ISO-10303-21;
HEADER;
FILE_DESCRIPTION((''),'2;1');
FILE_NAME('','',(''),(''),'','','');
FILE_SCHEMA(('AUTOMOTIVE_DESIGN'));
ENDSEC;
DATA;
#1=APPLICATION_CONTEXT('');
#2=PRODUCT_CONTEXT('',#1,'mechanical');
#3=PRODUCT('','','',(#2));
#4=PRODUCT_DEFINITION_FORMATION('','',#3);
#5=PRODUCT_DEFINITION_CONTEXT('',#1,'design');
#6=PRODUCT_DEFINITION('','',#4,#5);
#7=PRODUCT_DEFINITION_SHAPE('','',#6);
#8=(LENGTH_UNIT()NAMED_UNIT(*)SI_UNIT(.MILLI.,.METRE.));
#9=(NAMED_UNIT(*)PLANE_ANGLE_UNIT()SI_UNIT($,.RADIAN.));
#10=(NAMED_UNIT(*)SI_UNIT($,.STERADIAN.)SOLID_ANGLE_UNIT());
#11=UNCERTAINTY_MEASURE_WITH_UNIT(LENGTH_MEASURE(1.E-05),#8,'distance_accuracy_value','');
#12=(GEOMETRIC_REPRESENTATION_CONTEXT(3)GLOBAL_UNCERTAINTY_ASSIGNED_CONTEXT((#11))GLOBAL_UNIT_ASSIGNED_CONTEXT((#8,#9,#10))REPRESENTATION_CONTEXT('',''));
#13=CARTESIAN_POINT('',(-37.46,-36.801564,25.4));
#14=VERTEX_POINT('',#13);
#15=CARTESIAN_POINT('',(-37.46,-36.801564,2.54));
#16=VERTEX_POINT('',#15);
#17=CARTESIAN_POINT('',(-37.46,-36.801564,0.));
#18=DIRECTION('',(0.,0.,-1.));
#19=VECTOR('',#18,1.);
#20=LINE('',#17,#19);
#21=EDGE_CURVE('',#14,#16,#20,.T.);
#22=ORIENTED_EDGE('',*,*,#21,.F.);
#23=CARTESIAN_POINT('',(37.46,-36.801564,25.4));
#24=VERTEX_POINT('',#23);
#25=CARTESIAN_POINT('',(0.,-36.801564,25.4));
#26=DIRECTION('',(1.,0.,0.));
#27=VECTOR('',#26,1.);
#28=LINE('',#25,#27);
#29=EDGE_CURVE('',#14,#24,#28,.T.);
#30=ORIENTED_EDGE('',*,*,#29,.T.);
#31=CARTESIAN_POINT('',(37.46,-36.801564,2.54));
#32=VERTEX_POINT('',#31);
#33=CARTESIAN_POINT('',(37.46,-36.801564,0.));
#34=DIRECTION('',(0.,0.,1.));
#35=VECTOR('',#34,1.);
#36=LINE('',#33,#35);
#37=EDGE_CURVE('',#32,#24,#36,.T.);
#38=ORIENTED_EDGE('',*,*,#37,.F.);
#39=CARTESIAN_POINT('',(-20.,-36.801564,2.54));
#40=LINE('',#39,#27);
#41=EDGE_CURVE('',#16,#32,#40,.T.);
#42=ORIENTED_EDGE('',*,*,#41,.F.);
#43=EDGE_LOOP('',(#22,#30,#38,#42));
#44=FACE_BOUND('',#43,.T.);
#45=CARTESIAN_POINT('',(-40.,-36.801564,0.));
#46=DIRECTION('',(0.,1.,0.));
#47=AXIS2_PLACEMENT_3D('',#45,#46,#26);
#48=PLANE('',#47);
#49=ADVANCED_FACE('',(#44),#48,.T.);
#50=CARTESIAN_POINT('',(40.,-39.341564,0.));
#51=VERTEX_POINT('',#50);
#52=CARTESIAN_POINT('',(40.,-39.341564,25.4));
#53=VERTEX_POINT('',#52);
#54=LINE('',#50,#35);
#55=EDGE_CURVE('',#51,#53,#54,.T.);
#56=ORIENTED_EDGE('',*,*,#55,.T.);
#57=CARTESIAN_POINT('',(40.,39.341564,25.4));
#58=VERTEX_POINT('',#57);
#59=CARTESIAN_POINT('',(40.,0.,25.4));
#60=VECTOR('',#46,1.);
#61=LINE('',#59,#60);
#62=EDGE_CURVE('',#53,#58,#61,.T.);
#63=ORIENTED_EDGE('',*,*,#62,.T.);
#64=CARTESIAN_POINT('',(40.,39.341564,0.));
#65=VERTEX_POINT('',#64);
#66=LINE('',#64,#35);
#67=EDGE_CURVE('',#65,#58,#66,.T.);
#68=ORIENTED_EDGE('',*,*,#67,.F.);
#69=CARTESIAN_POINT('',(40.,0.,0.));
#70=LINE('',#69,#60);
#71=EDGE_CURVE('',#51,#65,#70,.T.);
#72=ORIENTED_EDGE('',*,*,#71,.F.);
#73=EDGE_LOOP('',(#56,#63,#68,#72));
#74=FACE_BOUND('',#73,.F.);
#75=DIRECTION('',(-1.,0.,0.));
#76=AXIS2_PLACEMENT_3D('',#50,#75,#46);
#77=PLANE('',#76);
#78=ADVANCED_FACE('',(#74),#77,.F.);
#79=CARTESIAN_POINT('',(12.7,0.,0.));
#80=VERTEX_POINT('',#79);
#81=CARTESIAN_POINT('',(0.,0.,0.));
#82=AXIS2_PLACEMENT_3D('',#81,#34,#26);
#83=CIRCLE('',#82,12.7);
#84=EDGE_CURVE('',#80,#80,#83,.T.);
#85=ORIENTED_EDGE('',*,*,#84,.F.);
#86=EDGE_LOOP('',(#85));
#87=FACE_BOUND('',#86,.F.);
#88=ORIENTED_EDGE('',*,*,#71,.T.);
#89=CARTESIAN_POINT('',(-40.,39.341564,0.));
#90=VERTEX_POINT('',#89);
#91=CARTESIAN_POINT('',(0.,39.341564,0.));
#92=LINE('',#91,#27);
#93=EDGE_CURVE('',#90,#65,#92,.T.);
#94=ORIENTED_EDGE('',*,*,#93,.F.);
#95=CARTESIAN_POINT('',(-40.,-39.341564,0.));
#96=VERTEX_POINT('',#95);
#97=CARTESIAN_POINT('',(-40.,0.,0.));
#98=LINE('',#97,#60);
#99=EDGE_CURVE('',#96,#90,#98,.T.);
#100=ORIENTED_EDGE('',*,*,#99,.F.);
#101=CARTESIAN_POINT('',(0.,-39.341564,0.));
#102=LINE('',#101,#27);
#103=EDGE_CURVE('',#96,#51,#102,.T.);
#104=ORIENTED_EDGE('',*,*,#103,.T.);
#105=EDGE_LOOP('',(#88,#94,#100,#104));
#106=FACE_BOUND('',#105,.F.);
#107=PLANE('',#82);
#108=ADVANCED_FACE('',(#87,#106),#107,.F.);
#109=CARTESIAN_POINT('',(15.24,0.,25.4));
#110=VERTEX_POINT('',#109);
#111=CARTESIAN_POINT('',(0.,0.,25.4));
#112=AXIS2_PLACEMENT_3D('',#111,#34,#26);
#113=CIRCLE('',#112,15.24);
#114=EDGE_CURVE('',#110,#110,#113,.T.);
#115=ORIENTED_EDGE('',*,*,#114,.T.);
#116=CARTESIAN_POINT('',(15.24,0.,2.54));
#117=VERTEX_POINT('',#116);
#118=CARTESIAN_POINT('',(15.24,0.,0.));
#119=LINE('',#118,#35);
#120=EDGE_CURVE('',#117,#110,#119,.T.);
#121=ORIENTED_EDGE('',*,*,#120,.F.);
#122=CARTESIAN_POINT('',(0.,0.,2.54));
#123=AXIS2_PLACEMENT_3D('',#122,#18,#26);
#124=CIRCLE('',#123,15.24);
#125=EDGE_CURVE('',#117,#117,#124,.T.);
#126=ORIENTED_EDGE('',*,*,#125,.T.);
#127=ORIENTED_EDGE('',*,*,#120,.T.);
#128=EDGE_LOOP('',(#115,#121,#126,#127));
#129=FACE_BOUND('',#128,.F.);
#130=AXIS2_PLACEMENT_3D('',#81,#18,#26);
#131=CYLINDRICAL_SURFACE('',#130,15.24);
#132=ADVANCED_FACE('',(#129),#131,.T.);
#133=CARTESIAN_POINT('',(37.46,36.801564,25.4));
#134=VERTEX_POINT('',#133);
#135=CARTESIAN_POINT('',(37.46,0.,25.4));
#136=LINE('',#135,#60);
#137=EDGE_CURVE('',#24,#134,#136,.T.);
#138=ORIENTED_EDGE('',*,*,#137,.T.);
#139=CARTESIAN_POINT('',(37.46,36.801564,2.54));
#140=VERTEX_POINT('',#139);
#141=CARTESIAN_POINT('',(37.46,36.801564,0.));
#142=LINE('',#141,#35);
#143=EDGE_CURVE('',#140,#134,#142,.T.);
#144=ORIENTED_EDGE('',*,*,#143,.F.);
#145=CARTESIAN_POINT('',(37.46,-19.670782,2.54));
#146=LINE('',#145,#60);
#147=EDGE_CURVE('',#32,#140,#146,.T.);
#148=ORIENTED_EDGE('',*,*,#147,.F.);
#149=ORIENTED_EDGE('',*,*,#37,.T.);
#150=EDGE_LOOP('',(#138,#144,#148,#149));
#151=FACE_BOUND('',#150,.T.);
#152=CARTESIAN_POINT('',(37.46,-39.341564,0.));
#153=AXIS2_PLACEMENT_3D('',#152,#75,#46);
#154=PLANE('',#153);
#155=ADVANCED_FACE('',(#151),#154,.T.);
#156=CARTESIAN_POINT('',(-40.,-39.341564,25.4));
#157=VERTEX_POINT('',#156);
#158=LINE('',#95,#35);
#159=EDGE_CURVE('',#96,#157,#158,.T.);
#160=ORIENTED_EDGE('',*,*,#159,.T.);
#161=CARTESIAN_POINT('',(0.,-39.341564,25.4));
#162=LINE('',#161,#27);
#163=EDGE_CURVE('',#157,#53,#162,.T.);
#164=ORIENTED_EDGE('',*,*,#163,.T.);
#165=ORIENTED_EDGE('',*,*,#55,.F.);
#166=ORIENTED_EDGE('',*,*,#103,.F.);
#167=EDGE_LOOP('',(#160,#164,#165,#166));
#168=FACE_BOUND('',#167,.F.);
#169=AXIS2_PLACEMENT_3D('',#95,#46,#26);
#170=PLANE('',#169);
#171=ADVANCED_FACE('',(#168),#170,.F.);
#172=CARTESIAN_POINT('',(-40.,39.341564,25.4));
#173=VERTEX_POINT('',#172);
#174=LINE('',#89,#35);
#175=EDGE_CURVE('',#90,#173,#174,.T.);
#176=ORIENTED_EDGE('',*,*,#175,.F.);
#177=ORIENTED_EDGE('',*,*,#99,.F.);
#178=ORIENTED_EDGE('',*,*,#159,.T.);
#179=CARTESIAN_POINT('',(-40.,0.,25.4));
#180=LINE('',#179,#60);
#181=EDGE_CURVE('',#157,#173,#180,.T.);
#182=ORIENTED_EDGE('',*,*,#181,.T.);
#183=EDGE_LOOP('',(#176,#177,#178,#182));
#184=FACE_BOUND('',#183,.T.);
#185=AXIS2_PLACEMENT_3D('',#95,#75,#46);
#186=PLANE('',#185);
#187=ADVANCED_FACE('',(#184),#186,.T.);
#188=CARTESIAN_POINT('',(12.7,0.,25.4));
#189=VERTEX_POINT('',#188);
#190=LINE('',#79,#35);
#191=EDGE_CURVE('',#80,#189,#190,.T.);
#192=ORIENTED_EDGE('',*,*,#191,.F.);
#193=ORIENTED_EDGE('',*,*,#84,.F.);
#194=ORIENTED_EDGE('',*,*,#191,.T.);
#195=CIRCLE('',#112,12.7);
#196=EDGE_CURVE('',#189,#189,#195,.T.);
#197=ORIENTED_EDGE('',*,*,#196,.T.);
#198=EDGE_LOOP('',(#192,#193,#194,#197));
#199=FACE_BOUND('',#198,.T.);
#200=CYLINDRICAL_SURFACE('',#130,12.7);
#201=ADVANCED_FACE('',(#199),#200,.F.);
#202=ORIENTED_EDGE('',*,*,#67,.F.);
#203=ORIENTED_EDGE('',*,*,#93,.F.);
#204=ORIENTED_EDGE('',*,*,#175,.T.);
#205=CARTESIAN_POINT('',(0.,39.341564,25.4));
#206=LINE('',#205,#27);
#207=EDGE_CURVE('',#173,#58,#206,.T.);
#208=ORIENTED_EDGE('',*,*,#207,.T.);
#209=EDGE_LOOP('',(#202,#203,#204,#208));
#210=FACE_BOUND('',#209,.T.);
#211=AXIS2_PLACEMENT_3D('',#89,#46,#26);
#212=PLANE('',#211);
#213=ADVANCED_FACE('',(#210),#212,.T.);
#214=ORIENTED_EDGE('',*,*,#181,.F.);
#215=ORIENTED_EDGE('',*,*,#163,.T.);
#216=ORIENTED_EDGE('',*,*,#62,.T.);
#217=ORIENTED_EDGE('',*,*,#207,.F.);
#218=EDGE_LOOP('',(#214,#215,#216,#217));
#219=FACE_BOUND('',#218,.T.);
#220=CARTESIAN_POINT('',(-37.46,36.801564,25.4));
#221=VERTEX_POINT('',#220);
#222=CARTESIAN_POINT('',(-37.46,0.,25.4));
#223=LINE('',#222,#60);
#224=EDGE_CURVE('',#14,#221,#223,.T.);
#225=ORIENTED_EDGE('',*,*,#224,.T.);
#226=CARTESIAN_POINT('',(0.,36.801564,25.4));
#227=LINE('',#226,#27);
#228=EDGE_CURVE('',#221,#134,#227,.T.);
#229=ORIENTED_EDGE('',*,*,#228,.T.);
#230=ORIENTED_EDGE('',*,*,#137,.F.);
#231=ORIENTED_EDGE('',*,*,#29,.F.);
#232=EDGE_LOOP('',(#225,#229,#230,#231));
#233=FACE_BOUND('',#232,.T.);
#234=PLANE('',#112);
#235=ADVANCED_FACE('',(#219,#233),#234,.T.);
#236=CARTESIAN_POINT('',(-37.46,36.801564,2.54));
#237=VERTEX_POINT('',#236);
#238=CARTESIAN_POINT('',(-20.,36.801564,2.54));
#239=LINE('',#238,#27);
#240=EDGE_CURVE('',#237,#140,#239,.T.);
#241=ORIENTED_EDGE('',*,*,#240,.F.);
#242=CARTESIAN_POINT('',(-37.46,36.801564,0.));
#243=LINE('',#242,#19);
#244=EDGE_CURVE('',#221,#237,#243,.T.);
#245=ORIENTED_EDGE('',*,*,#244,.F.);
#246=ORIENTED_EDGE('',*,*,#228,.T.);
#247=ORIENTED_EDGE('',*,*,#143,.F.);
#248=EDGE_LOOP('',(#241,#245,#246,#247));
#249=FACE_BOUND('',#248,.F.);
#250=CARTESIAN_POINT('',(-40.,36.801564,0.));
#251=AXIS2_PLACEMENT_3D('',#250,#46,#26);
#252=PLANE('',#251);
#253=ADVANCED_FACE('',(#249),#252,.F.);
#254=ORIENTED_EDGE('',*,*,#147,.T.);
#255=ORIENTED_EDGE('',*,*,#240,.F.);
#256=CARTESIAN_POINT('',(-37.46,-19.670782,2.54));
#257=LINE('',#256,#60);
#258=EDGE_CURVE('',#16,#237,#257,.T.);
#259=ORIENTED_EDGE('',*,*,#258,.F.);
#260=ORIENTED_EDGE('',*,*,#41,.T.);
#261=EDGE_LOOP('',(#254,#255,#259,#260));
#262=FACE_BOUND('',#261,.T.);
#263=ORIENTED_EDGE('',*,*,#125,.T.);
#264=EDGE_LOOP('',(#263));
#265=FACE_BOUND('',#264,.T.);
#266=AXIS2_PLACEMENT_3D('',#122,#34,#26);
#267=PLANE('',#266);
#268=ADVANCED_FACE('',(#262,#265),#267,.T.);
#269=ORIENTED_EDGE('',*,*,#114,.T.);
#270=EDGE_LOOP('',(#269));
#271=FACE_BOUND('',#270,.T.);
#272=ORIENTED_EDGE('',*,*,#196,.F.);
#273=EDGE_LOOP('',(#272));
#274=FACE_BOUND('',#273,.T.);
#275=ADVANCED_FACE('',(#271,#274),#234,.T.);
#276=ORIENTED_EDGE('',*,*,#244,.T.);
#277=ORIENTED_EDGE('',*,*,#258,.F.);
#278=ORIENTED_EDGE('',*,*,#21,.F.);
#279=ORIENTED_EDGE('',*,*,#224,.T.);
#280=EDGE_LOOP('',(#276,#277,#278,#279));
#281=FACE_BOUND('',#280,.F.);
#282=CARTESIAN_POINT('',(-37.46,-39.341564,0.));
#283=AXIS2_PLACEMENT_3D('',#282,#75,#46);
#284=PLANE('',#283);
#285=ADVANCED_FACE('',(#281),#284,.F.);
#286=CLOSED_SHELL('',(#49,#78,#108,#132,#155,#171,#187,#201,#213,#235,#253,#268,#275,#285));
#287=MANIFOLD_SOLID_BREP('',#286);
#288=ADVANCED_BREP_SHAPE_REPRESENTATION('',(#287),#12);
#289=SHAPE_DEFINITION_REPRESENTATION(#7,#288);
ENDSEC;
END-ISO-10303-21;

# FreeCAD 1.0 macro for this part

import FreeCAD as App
import Part
import Sketcher
Q = App.Units.Quantity


def faces_at(feature, points):
    """Names of the faces that lie closest to the given points."""
    faces = feature.Shape.Faces
    near = lambda p: min(range(len(faces)), key=lambda i: faces[i].distToShape(Part.Vertex(*p))[0])
    return sorted({f"Face{near(p) + 1}" for p in points})


def add_polygon(sketch, points):
    """Adds a closed chain of lines whose ends are joined by coincident constraints."""
    first, n = sketch.GeometryCount, len(points)
    for a, b in zip(points, points[1:] + points[:1]):
        sketch.addGeometry(Part.LineSegment(App.Vector(*a, 0), App.Vector(*b, 0)), False)
    for i in range(n):
        sketch.addConstraint(Sketcher.Constraint("Coincident", first + i, 2, first + (i + 1) % n, 1))

doc = App.newDocument("Part")
body = doc.addObject("PartDesign::Body", "Body")

# Sketch on XY plane
sketch1 = body.newObject("Sketcher::SketchObject", "Sketch")
sketch1.AttachmentSupport = (doc.getObject("XY_Plane"), [""])
sketch1.MapMode = "FlatFace"
add_polygon(sketch1, [(-40, 39.341564), (-40, -39.341564), (40, -39.341564), (40, 39.341564)])  # lines 0-3
sketch1.addGeometry(Part.Circle(App.Vector(0, 0, 0), App.Vector(0, 0, 1), 12.7), False)  # 4
sketch1.addConstraint([
    Sketcher.Constraint("Vertical", 0),
    Sketcher.Constraint("Horizontal", 1),
    Sketcher.Constraint("Vertical", 2),
    Sketcher.Constraint("Horizontal", 3),
    Sketcher.Constraint("Coincident", 4, 3, -1, 1),
    Sketcher.Constraint("Symmetric", 0, 2, 2, 2, -1, 1),
    Sketcher.Constraint("Diameter", 4, Q("1 in")),
    Sketcher.Constraint("DistanceX", 1, 1, 1, 2, 80.0),
    Sketcher.Constraint("DistanceY", 0, 2, 0, 1, 78.683128),
])
pad1 = body.newObject("PartDesign::Pad", "Pad")
pad1.Profile = sketch1
pad1.Length = Q("1 in")
doc.recompute()

thickness = body.newObject("PartDesign::Thickness", "Thickness")
thickness.Base = (pad1, faces_at(pad1, [(-16, -15.737, 25.4)]))
thickness.Value = Q("0.1 in")
thickness.Reversed = True
thickness.Join = "Arc"

doc.recompute()
